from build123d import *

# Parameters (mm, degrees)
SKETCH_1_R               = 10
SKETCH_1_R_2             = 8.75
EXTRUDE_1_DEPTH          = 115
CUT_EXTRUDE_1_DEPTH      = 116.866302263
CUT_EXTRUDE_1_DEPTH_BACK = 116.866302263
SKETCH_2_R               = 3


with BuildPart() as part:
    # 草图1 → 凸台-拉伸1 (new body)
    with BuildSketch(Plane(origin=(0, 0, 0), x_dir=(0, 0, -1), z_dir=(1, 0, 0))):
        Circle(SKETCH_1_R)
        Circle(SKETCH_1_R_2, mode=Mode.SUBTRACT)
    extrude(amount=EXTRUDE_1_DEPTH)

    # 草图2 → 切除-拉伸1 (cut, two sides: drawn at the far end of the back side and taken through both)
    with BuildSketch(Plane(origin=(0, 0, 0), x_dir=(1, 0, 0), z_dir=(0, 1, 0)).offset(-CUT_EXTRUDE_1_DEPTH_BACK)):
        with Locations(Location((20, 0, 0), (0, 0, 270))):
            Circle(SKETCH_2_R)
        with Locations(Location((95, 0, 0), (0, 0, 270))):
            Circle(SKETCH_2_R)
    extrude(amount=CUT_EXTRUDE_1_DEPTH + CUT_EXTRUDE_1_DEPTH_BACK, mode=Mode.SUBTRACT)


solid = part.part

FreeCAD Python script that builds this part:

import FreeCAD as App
import Part
import Sketcher
from FreeCAD import Vector
Q = App.Units.Quantity

doc = App.newDocument("Part")
body = doc.addObject("PartDesign::Body", "Body")

# Sketch on YZ plane
sketch1 = body.newObject("Sketcher::SketchObject", "Sketch")
sketch1.AttachmentSupport = (doc.getObject("YZ_Plane"), [""])
sketch1.MapMode = "FlatFace"
sketch1.addGeometry([
    Part.Circle(Vector(0, 0, 0), Vector(0, 0, 1), 10),
    Part.Circle(Vector(0, 0, 0), Vector(0, 0, 1), 9),
], False)
sketch1.addConstraint([
    Sketcher.Constraint("Coincident", 0, 3, -1, 1),
    Sketcher.Constraint("Coincident", 1, 3, -1, 1),
    Sketcher.Constraint("Diameter", 0, Q("20 mm")),
    Sketcher.Constraint("Diameter", 1, Q("17.5 mm")),
])
pad1 = body.newObject("PartDesign::Pad", "Pad")
pad1.Profile = sketch1
pad1.Length = 115

# Sketch on XZ plane
sketch2 = body.newObject("Sketcher::SketchObject", "Sketch001")
sketch2.AttachmentSupport = (doc.getObject("XZ_Plane"), [""])
sketch2.MapMode = "FlatFace"
sketch2.addGeometry([
    Part.Circle(Vector(20, 0, 0), Vector(0, 0, 1), 3),
    Part.Circle(Vector(95, 0, 0), Vector(0, 0, 1), 3),
], False)
sketch2.addConstraint([
    Sketcher.Constraint("Equal", 0, 1),
    Sketcher.Constraint("PointOnObject", 0, 3, -1),
    Sketcher.Constraint("PointOnObject", 1, 3, -1),
    Sketcher.Constraint("Diameter", 0, Q("6 mm")),
    Sketcher.Constraint("DistanceX", -1, 1, 0, 3, Q("20 mm")),
    Sketcher.Constraint("DistanceX", -1, 1, 1, 3, Q("95 mm")),
])
pocket1 = body.newObject("PartDesign::Pocket", "Pocket")
pocket1.Profile = sketch2
pocket1.Type = "ThroughAll"
pocket1.Midplane = True

doc.recompute()
